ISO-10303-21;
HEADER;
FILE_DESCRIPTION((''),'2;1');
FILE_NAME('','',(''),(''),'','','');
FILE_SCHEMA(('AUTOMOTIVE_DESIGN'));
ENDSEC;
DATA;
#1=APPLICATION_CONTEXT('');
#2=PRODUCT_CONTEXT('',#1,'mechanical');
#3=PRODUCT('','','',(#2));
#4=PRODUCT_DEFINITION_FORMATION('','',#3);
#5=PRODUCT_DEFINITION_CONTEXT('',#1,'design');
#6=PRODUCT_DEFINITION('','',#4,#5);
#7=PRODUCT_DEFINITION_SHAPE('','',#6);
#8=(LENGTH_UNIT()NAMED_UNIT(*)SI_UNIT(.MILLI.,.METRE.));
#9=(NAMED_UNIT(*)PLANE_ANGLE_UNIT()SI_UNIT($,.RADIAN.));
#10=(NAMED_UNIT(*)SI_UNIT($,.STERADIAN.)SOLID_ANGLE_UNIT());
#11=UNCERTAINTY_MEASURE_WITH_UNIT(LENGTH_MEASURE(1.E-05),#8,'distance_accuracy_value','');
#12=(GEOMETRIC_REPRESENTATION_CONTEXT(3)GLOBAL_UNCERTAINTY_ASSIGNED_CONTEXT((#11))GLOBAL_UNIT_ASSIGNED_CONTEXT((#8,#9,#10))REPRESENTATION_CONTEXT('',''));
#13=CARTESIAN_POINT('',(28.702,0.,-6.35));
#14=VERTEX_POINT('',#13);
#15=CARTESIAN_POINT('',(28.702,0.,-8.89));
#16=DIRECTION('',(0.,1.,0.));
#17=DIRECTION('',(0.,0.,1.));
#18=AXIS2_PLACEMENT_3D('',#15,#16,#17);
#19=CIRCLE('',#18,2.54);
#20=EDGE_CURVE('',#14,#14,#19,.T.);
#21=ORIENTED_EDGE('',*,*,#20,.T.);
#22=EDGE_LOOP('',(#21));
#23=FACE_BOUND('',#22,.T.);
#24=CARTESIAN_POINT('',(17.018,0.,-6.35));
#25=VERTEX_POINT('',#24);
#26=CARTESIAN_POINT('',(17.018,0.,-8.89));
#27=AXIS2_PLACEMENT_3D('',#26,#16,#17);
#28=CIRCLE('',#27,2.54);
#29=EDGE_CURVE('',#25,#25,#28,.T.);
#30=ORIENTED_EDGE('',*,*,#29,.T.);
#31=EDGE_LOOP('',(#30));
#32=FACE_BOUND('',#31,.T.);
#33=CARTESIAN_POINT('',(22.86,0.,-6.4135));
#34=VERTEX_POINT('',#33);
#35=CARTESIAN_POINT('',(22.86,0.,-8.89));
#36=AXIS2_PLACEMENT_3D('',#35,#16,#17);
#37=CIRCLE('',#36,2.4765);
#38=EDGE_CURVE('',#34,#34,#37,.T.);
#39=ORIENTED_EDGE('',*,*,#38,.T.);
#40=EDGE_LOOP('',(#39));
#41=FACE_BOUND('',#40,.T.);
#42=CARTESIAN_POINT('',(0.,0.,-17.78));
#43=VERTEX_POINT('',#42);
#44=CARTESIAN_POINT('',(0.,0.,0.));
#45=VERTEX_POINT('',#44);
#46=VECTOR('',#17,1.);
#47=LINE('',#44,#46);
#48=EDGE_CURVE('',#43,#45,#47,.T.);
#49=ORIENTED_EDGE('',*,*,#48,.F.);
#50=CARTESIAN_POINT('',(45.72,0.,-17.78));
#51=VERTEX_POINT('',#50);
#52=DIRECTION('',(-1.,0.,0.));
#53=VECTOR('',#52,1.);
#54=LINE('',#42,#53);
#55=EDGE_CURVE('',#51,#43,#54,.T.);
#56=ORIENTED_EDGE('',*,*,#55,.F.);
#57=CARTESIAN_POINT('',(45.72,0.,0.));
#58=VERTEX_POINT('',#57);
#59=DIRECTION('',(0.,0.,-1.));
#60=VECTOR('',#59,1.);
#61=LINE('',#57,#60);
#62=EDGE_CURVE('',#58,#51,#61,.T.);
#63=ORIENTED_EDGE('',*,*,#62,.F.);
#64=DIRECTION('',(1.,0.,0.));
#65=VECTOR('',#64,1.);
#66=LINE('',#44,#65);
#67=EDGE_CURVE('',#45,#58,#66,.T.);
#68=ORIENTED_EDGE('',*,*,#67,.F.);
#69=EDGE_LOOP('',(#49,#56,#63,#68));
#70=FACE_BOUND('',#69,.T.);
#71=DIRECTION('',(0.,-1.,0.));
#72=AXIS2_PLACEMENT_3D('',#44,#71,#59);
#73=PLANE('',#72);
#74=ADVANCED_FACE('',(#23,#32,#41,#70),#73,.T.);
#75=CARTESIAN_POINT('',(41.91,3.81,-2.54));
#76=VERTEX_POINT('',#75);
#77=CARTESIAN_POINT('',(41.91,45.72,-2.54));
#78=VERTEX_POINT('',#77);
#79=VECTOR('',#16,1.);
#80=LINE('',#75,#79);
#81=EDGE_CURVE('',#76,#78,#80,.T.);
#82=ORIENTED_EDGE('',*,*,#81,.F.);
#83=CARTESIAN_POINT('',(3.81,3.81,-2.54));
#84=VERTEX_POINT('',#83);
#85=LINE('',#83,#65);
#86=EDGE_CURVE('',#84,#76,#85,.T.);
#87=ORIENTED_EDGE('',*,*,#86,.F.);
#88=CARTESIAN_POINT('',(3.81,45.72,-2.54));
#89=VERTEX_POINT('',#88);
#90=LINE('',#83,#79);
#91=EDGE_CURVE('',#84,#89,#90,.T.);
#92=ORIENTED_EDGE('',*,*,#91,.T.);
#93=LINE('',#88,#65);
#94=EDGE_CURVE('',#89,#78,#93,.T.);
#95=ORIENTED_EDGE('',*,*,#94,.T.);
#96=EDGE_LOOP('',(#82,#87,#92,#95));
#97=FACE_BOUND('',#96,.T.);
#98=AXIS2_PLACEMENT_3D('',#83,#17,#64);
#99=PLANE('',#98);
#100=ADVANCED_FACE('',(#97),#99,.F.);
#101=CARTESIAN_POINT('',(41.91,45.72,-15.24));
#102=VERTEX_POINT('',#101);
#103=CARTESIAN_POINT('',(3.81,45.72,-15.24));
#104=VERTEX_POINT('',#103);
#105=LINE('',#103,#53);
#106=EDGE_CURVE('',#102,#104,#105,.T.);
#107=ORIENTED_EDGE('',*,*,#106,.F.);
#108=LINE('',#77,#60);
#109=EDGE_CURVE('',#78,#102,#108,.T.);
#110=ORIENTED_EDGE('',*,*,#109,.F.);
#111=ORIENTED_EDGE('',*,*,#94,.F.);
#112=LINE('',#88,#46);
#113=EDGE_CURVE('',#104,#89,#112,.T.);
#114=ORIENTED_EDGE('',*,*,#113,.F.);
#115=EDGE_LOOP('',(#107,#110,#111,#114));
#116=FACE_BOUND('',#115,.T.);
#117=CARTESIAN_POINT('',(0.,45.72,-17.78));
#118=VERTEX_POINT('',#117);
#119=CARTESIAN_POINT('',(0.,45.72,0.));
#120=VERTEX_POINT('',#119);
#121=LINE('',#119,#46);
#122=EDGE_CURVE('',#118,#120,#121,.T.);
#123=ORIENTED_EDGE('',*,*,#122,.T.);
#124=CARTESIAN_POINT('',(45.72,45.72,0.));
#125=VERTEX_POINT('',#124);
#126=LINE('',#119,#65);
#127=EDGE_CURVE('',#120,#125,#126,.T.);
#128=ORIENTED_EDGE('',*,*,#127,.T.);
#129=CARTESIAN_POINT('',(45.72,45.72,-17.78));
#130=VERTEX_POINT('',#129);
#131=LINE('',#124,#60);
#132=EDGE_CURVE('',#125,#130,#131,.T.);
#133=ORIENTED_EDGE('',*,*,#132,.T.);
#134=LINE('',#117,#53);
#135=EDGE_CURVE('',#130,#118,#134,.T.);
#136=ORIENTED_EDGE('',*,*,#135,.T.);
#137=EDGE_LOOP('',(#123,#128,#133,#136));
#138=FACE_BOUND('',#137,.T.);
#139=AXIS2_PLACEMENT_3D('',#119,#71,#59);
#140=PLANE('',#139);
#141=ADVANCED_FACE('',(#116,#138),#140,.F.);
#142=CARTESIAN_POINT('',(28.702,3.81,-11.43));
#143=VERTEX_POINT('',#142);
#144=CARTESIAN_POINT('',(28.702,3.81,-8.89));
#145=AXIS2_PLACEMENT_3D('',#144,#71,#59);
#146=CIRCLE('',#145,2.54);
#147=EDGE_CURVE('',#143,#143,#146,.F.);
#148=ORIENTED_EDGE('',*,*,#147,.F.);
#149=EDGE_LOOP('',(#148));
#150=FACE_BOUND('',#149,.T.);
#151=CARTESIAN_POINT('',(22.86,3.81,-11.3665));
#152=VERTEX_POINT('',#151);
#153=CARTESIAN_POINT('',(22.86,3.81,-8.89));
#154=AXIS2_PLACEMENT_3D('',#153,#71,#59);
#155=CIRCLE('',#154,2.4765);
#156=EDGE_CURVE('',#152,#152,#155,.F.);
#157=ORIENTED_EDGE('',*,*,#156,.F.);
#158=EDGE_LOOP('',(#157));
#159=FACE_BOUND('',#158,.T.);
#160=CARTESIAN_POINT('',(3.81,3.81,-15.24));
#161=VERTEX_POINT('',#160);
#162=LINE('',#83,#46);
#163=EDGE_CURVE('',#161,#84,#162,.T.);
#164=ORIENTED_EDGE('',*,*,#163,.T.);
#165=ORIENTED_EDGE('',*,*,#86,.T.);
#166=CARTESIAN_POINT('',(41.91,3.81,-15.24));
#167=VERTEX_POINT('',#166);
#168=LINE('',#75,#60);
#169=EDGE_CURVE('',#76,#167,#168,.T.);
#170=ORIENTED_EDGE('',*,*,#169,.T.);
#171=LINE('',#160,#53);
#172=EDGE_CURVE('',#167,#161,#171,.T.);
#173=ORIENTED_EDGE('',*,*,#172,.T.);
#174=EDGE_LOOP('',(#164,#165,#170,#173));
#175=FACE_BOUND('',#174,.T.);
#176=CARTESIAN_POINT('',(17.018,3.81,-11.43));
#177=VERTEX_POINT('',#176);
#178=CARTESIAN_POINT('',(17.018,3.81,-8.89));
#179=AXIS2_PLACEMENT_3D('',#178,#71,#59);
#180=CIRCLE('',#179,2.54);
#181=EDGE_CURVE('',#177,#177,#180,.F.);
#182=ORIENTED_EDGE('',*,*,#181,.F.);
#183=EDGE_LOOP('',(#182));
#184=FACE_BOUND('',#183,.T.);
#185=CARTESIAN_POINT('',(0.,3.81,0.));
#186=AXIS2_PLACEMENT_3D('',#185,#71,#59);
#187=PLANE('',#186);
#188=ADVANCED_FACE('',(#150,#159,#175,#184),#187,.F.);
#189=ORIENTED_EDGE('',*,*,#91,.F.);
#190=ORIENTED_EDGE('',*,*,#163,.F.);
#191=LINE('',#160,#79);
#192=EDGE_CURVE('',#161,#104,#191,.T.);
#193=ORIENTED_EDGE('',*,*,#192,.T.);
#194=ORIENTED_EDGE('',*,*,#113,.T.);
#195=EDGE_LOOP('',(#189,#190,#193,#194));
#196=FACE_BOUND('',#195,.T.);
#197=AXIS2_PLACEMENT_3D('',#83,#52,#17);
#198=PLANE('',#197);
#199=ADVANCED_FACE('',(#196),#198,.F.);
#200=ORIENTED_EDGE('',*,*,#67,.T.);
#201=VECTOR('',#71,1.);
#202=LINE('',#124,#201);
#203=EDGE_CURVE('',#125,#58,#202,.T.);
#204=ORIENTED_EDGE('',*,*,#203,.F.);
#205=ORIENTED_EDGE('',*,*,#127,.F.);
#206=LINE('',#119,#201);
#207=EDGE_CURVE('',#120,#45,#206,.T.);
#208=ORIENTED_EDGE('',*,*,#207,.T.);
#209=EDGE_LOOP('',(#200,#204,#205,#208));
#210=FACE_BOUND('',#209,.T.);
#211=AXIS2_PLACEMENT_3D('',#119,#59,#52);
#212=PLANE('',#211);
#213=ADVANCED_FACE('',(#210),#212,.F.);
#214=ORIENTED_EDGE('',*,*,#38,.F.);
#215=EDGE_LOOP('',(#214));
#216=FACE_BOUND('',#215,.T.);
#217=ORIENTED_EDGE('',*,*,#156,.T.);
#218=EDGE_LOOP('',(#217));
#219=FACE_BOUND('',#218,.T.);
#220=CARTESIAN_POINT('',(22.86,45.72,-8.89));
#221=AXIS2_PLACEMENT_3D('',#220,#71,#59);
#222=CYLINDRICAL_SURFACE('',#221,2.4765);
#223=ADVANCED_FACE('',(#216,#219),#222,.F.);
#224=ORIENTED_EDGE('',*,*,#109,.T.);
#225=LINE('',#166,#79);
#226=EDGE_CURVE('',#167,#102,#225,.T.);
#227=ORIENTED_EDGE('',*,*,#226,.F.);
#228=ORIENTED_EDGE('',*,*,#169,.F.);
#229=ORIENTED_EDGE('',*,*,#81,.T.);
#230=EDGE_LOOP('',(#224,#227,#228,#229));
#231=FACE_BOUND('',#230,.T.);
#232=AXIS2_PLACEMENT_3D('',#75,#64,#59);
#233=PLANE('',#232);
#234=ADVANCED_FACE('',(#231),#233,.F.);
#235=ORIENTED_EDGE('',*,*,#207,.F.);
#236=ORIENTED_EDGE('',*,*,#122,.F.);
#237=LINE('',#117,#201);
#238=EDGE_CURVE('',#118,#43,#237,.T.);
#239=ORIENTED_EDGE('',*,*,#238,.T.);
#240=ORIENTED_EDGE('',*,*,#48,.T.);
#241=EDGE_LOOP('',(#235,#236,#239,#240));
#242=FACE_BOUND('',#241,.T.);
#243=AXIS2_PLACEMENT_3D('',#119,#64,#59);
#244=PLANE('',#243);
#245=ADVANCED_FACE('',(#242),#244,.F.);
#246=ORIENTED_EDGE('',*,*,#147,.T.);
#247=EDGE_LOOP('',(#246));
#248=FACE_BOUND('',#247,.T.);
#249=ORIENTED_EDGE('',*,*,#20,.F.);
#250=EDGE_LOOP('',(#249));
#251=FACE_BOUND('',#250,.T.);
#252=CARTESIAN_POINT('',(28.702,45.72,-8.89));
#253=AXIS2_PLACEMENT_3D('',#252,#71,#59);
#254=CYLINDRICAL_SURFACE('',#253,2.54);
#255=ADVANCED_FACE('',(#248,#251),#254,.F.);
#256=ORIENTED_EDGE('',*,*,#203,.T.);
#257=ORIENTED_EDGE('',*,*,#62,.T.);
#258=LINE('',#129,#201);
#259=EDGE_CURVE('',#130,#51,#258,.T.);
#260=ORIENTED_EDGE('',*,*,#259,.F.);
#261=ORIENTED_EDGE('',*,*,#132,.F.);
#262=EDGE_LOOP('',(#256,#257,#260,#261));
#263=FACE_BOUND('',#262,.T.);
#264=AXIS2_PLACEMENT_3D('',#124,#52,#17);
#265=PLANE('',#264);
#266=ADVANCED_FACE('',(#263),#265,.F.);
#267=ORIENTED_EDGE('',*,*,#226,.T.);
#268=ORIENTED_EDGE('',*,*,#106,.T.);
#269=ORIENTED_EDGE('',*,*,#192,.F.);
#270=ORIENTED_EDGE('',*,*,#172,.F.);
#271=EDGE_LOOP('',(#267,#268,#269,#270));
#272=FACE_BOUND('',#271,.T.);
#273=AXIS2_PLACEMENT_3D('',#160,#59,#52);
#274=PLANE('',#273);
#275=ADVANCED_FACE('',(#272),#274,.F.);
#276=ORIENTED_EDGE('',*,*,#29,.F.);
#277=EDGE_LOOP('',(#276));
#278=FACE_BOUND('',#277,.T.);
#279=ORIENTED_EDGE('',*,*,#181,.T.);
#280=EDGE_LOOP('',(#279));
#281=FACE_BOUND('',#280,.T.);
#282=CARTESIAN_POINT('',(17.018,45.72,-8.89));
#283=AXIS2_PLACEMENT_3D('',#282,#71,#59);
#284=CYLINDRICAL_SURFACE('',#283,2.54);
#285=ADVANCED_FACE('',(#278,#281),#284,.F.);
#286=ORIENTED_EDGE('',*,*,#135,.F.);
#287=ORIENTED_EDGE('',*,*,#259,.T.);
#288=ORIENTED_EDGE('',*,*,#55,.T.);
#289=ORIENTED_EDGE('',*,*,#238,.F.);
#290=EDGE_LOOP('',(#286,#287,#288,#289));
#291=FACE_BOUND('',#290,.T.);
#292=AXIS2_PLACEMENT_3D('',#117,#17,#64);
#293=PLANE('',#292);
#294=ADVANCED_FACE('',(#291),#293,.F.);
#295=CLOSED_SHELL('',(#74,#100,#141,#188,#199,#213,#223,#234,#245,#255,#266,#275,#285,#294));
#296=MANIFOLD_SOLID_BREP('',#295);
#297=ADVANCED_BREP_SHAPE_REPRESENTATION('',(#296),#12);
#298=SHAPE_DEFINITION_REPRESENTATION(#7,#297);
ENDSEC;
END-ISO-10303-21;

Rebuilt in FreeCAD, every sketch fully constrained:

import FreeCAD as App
import Part
import Sketcher
Q = App.Units.Quantity

doc = App.newDocument("Part")
body = doc.addObject("PartDesign::Body", "Body")

sketch1 = body.newObject("Sketcher::SketchObject", "Sketch")
sketch1.AttachmentSupport = (doc.getObject("XZ_Plane"), [""])
sketch1.MapMode = "FlatFace"
sketch1.addGeometry([
    Part.LineSegment(App.Vector(0, -17.78, 0), App.Vector(0, 0, 0)),
    Part.LineSegment(App.Vector(0, 0, 0), App.Vector(45.72, 0, 0)),
    Part.LineSegment(App.Vector(45.72, 0, 0), App.Vector(45.72, -17.78, 0)),
    Part.LineSegment(App.Vector(45.72, -17.78, 0), App.Vector(0, -17.78, 0)),
], False)
sketch1.addConstraint([
    Sketcher.Constraint("Coincident", 0, 2, 1, 1),
    Sketcher.Constraint("Coincident", 1, 2, 2, 1),
    Sketcher.Constraint("Coincident", 2, 2, 3, 1),
    Sketcher.Constraint("Coincident", 3, 2, 0, 1),
    Sketcher.Constraint("Vertical", 0),
    Sketcher.Constraint("Horizontal", 1),
    Sketcher.Constraint("Vertical", 2),
    Sketcher.Constraint("Horizontal", 3),
    Sketcher.Constraint("Coincident", 0, 2, -1, 1),
    Sketcher.Constraint("DistanceX", 1, 1, 1, 2, Q("1.8 in")),
    Sketcher.Constraint("DistanceY", 0, 1, 0, 2, Q("0.7 in")),
])
pad1 = body.newObject("PartDesign::Pad", "Pad")
pad1.Profile = sketch1
pad1.Length = Q("1.8 in")
pad1.Reversed = True

sketch2 = body.newObject("Sketcher::SketchObject", "Sketch001")
sketch2.AttachmentSupport = (doc.getObject("XZ_Plane"), [""])
sketch2.MapMode = "FlatFace"
sketch2.AttachmentOffset = App.Placement(App.Vector(0, 0, -1.8 * 25.4), App.Rotation())
sketch2.addGeometry([
    Part.LineSegment(App.Vector(3.81, -15.24, 0), App.Vector(3.81, -2.54, 0)),
    Part.LineSegment(App.Vector(3.81, -2.54, 0), App.Vector(41.91, -2.54, 0)),
    Part.LineSegment(App.Vector(41.91, -2.54, 0), App.Vector(41.91, -15.24, 0)),
    Part.LineSegment(App.Vector(41.91, -15.24, 0), App.Vector(3.81, -15.24, 0)),
], False)
sketch2.addConstraint([
    Sketcher.Constraint("Coincident", 0, 2, 1, 1),
    Sketcher.Constraint("Coincident", 1, 2, 2, 1),
    Sketcher.Constraint("Coincident", 2, 2, 3, 1),
    Sketcher.Constraint("Coincident", 3, 2, 0, 1),
    Sketcher.Constraint("Vertical", 0),
    Sketcher.Constraint("Horizontal", 1),
    Sketcher.Constraint("Vertical", 2),
    Sketcher.Constraint("Horizontal", 3),
    Sketcher.Constraint("DistanceX", 1, 1, 1, 2, Q("1.5 in")),
    Sketcher.Constraint("DistanceY", 0, 1, 0, 2, Q("0.5 in")),
    Sketcher.Constraint("DistanceY", 0, 2, -1, 1, Q("0.1 in")),
    Sketcher.Constraint("DistanceX", -1, 1, 0, 2, Q("0.15 in")),
])
pocket1 = body.newObject("PartDesign::Pocket", "Pocket")
pocket1.Profile = sketch2
pocket1.Length = Q("1.65 in")
pocket1.Reversed = True

sketch3 = body.newObject("Sketcher::SketchObject", "Sketch002")
sketch3.AttachmentSupport = (doc.getObject("XZ_Plane"), [""])
sketch3.MapMode = "FlatFace"
sketch3.addGeometry([
    Part.Circle(App.Vector(22.86, -8.89, 0), App.Vector(0, 0, 1), 2.4765),
    Part.Circle(App.Vector(17.018, -8.89, 0), App.Vector(0, 0, 1), 2.54),
    Part.Circle(App.Vector(28.702, -8.89, 0), App.Vector(0, 0, 1), 2.54),
], False)
sketch3.addConstraint([
    Sketcher.Constraint("Equal", 1, 2),
    Sketcher.Constraint("Horizontal", 0, 3, 1, 3),
    Sketcher.Constraint("Horizontal", 1, 3, 2, 3),
    Sketcher.Constraint("Diameter", 1, Q("0.2 in")),
    Sketcher.Constraint("Diameter", 0, Q("0.195 in")),
    Sketcher.Constraint("DistanceX", -1, 1, 0, 3, Q("0.9 in")),
    Sketcher.Constraint("DistanceY", 0, 3, -1, 1, Q("0.35 in")),
    Sketcher.Constraint("DistanceX", -1, 1, 1, 3, Q("0.67 in")),
    Sketcher.Constraint("DistanceX", -1, 1, 2, 3, Q("1.13 in")),
])
pocket2 = body.newObject("PartDesign::Pocket", "Pocket001")
pocket2.Profile = sketch3
pocket2.Type = "ThroughAll"

doc.recompute()
